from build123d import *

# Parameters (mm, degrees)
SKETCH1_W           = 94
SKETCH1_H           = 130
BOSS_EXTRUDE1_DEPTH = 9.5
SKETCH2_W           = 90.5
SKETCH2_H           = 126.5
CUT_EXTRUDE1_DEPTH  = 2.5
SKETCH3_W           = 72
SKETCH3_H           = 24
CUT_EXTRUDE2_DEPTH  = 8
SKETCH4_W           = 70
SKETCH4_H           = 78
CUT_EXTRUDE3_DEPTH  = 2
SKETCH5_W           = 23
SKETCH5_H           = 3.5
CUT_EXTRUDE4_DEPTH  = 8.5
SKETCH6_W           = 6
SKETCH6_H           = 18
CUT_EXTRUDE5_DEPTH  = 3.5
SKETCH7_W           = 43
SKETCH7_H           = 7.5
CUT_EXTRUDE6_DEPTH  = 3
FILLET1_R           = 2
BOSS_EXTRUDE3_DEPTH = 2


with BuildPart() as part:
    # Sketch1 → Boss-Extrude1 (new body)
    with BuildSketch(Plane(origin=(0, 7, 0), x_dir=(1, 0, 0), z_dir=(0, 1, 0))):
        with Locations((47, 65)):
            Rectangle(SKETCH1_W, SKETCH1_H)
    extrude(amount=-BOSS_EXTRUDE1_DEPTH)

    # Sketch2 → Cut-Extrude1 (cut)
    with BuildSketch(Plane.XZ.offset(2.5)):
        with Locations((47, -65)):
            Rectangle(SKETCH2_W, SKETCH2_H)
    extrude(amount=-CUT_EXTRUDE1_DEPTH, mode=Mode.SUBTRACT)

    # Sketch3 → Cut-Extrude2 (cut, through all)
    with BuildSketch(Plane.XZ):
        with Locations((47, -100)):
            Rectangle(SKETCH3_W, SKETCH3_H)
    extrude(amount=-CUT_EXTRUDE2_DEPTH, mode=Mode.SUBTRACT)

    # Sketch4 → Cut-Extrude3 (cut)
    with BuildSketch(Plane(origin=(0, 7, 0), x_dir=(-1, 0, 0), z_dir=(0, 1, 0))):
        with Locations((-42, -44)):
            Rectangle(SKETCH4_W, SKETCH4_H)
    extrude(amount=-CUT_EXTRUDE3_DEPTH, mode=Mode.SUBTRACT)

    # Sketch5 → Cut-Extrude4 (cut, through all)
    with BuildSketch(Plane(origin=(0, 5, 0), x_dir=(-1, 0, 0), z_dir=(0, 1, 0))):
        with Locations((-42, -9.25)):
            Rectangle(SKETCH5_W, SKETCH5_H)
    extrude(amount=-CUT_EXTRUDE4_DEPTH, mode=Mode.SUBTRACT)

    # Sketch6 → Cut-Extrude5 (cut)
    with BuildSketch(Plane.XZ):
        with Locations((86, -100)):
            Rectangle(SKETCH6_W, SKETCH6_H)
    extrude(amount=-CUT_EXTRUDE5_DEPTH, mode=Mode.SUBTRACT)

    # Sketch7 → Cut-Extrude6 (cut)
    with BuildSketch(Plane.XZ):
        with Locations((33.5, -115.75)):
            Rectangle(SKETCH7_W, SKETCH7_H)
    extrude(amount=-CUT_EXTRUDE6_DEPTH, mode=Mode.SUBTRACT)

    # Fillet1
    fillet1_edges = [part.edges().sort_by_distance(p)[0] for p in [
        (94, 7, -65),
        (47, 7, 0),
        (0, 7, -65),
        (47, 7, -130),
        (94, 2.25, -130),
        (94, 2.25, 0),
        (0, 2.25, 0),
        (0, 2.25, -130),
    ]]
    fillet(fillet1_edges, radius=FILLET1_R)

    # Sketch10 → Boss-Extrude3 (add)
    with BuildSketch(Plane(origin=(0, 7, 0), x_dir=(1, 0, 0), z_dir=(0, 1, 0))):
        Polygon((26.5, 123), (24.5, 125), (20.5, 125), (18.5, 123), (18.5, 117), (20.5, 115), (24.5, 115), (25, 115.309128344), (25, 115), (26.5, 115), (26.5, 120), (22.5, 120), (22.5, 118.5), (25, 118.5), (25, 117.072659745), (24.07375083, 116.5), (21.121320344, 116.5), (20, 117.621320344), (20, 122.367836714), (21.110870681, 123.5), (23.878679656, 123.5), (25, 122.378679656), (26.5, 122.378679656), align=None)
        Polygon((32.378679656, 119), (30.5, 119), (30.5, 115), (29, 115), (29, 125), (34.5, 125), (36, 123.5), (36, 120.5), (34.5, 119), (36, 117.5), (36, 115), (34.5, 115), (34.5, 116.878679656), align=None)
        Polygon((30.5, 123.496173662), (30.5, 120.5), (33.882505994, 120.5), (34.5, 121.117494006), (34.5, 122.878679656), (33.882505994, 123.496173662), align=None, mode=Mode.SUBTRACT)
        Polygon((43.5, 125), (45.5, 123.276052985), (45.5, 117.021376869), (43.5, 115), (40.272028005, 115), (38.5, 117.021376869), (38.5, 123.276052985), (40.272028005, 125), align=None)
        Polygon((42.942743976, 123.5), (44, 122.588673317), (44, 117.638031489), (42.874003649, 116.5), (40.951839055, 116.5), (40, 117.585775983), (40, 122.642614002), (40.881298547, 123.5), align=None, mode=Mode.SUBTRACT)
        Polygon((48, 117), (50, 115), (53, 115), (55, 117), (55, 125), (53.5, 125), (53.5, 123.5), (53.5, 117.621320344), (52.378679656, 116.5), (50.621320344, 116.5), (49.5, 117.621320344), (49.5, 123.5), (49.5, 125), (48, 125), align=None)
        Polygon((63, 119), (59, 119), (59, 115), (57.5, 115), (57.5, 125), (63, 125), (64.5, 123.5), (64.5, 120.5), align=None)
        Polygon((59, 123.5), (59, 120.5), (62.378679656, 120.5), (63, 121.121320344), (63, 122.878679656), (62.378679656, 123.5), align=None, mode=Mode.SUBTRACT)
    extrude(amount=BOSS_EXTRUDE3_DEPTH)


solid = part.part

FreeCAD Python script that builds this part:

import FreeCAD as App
import Part
import Sketcher
from FreeCAD import Vector


def edges_at(feature, points):
    """Names of the edges that pass closest to the given points."""
    edges = feature.Shape.Edges
    near = lambda p: min(range(len(edges)), key=lambda i: edges[i].distToShape(Part.Vertex(*p))[0])
    return sorted({f"Edge{near(p) + 1}" for p in points})


def add_polygon(sketch, points):
    """Adds a closed chain of lines whose ends are joined by coincident constraints."""
    first, n = sketch.GeometryCount, len(points)
    for a, b in zip(points, points[1:] + points[:1]):
        sketch.addGeometry(Part.LineSegment(App.Vector(*a, 0), App.Vector(*b, 0)), False)
    for i in range(n):
        sketch.addConstraint(Sketcher.Constraint("Coincident", first + i, 2, first + (i + 1) % n, 1))

doc = App.newDocument("Part")
body = doc.addObject("PartDesign::Body", "Body")

# Sketch on XZ plane
sketch1 = body.newObject("Sketcher::SketchObject", "Sketch")
sketch1.AttachmentSupport = (doc.getObject("XZ_Plane"), [""])
sketch1.MapMode = "FlatFace"
sketch1.AttachmentOffset = App.Placement(Vector(0, 0, -7), App.Rotation())
add_polygon(sketch1, [(0, -130), (0, 0), (94, 0), (94, -130)])  # lines 0-3
sketch1.addConstraint([
    Sketcher.Constraint("Vertical", 0),
    Sketcher.Constraint("Horizontal", 1),
    Sketcher.Constraint("Vertical", 2),
    Sketcher.Constraint("Horizontal", 3),
    Sketcher.Constraint("Coincident", 0, 2, -1, 1),
    Sketcher.Constraint("DistanceX", 1, 1, 1, 2, 94.0),
    Sketcher.Constraint("DistanceY", 0, 1, 0, 2, 130.0),
])
pad1 = body.newObject("PartDesign::Pad", "Pad")
pad1.Profile = sketch1
pad1.Length = 9.5

# Sketch on XZ plane
sketch2 = body.newObject("Sketcher::SketchObject", "Sketch001")
sketch2.AttachmentSupport = (doc.getObject("XZ_Plane"), [""])
sketch2.MapMode = "FlatFace"
sketch2.AttachmentOffset = App.Placement(Vector(0, 0, 2.5), App.Rotation())
add_polygon(sketch2, [(2, -2), (2, -128), (92, -128), (92, -2)])  # lines 0-3
sketch2.addConstraint([
    Sketcher.Constraint("Vertical", 0),
    Sketcher.Constraint("Horizontal", 1),
    Sketcher.Constraint("Vertical", 2),
    Sketcher.Constraint("Horizontal", 3),
    Sketcher.Constraint("DistanceX", 1, 1, 1, 2, 90.5),
    Sketcher.Constraint("DistanceY", 0, 2, 0, 1, 126.5),
    Sketcher.Constraint("DistanceX", -1, 1, 0, 2, 1.75),
    Sketcher.Constraint("DistanceY", 0, 2, -1, 1, 128.25),
])
pocket1 = body.newObject("PartDesign::Pocket", "Pocket")
pocket1.Profile = sketch2
pocket1.Length = 2.5

# Sketch on XZ plane
sketch3 = body.newObject("Sketcher::SketchObject", "Sketch002")
sketch3.AttachmentSupport = (doc.getObject("XZ_Plane"), [""])
sketch3.MapMode = "FlatFace"
add_polygon(sketch3, [(11, -88), (11, -112), (83, -112), (83, -88)])  # lines 0-3
sketch3.addConstraint([
    Sketcher.Constraint("Vertical", 0),
    Sketcher.Constraint("Horizontal", 1),
    Sketcher.Constraint("Vertical", 2),
    Sketcher.Constraint("Horizontal", 3),
    Sketcher.Constraint("DistanceX", 1, 1, 1, 2, 72.0),
    Sketcher.Constraint("DistanceY", 0, 2, 0, 1, 24.0),
    Sketcher.Constraint("DistanceX", -1, 1, 0, 2, 11.0),
    Sketcher.Constraint("DistanceY", 0, 2, -1, 1, 112.0),
])
pocket2 = body.newObject("PartDesign::Pocket", "Pocket001")
pocket2.Profile = sketch3
pocket2.Type = "ThroughAll"

# Sketch on XZ plane
sketch4 = body.newObject("Sketcher::SketchObject", "Sketch003")
sketch4.AttachmentSupport = (doc.getObject("XZ_Plane"), [""])
sketch4.MapMode = "FlatFace"
sketch4.AttachmentOffset = App.Placement(Vector(0, 0, -7), App.Rotation())
add_polygon(sketch4, [(77, -5), (77, -83), (7, -83), (7, -5)])  # lines 0-3
sketch4.addConstraint([
    Sketcher.Constraint("Vertical", 0),
    Sketcher.Constraint("Horizontal", 1),
    Sketcher.Constraint("Vertical", 2),
    Sketcher.Constraint("Horizontal", 3),
    Sketcher.Constraint("DistanceX", 1, 2, 1, 1, 70.0),
    Sketcher.Constraint("DistanceY", 0, 2, 0, 1, 78.0),
    Sketcher.Constraint("DistanceX", -1, 1, 0, 2, 77.0),
    Sketcher.Constraint("DistanceY", 0, 2, -1, 1, 83.0),
])
pocket3 = body.newObject("PartDesign::Pocket", "Pocket002")
pocket3.Profile = sketch4
pocket3.Length = 2
pocket3.Reversed = True

# Sketch on XZ plane
sketch5 = body.newObject("Sketcher::SketchObject", "Sketch004")
sketch5.AttachmentSupport = (doc.getObject("XZ_Plane"), [""])
sketch5.MapMode = "FlatFace"
sketch5.AttachmentOffset = App.Placement(Vector(0, 0, -5), App.Rotation())
add_polygon(sketch5, [(53.5, -7.5), (53.5, -11), (30.5, -11), (30.5, -7.5)])  # lines 0-3
sketch5.addConstraint([
    Sketcher.Constraint("Vertical", 0),
    Sketcher.Constraint("Horizontal", 1),
    Sketcher.Constraint("Vertical", 2),
    Sketcher.Constraint("Horizontal", 3),
    Sketcher.Constraint("DistanceX", 1, 2, 1, 1, 23.0),
    Sketcher.Constraint("DistanceY", 0, 2, 0, 1, 3.5),
    Sketcher.Constraint("DistanceY", 0, 2, -1, 1, 11.0),
    Sketcher.Constraint("DistanceX", -1, 1, 0, 2, 53.5),
])
pocket4 = body.newObject("PartDesign::Pocket", "Pocket003")
pocket4.Profile = sketch5
pocket4.Type = "ThroughAll"
pocket4.Reversed = True

# Sketch on XZ plane
sketch6 = body.newObject("Sketcher::SketchObject", "Sketch005")
sketch6.AttachmentSupport = (doc.getObject("XZ_Plane"), [""])
sketch6.MapMode = "FlatFace"
add_polygon(sketch6, [(83, -91), (83, -109), (89, -109), (89, -91)])  # lines 0-3
sketch6.addConstraint([
    Sketcher.Constraint("Vertical", 0),
    Sketcher.Constraint("Horizontal", 1),
    Sketcher.Constraint("Vertical", 2),
    Sketcher.Constraint("Horizontal", 3),
    Sketcher.Constraint("DistanceX", 1, 1, 1, 2, 6.0),
    Sketcher.Constraint("DistanceY", 0, 2, 0, 1, 18.0),
    Sketcher.Constraint("DistanceX", -1, 1, 0, 2, 83.0),
    Sketcher.Constraint("DistanceY", 0, 2, -1, 1, 109.0),
])
pocket5 = body.newObject("PartDesign::Pocket", "Pocket004")
pocket5.Profile = sketch6
pocket5.Length = 3.5

# Sketch on XZ plane
sketch7 = body.newObject("Sketcher::SketchObject", "Sketch006")
sketch7.AttachmentSupport = (doc.getObject("XZ_Plane"), [""])
sketch7.MapMode = "FlatFace"
add_polygon(sketch7, [(12, -112), (12, -120), (55, -120), (55, -112)])  # lines 0-3
sketch7.addConstraint([
    Sketcher.Constraint("Vertical", 0),
    Sketcher.Constraint("Horizontal", 1),
    Sketcher.Constraint("Vertical", 2),
    Sketcher.Constraint("Horizontal", 3),
    Sketcher.Constraint("DistanceX", 1, 1, 1, 2, 43.0),
    Sketcher.Constraint("DistanceY", 0, 2, 0, 1, 7.5),
    Sketcher.Constraint("DistanceX", -1, 1, 0, 2, 12.0),
    Sketcher.Constraint("DistanceY", 2, 2, -1, 1, 112.0),
])
pocket6 = body.newObject("PartDesign::Pocket", "Pocket005")
pocket6.Profile = sketch7
pocket6.Length = 3
doc.recompute()

fillet = body.newObject("PartDesign::Fillet", "Fillet")
fillet.Base = (pocket6, edges_at(pocket6, [
    (94, 7, -65),
    (47, 7, 0),
    (0, 7, -65),
    (47, 7, -130),
    (94, 2.25, -130),
    (94, 2.25, 0),
    (0, 2.25, 0),
    (0, 2.25, -130),
]))
fillet.Radius = 2

# Sketch on XZ plane
sketch8 = body.newObject("Sketcher::SketchObject", "Sketch007")
sketch8.AttachmentSupport = (doc.getObject("XZ_Plane"), [""])
sketch8.MapMode = "FlatFace"
sketch8.AttachmentOffset = App.Placement(Vector(0, 0, -7), App.Rotation())
add_polygon(sketch8, [(26.5, -123), (24.5, -125), (20.5, -125), (18.5, -123), (18.5, -117), (20.5, -115), (24.5, -115), (25, -115.31), (25, -115), (26.5, -115), (26.5, -120), (22.5, -120), (22.5, -118.5), (25, -118.5), (25, -117.07), (24.07, -116.5), (21.12, -116.5), (20, -117.62), (20, -122.37), (21.11, -123.5), (23.88, -123.5), (25, -122.38), (26.5, -122.38)])  # lines 0-22
add_polygon(sketch8, [(30.5, -119), (32.38, -119), (34.5, -116.88), (34.5, -115), (36, -115), (36, -117.5), (34.5, -119), (36, -120.5), (36, -123.5), (34.5, -125), (29, -125), (29, -115), (30.5, -115)])  # lines 23-35
add_polygon(sketch8, [(30.5, -123.5), (33.88, -123.5), (34.5, -122.88), (34.5, -121.12), (33.88, -120.5), (30.5, -120.5)])  # lines 36-41
add_polygon(sketch8, [(45.5, -123.28), (43.5, -125), (40.27, -125), (38.5, -123.28), (38.5, -117.02), (40.27, -115), (43.5, -115), (45.5, -117.02)])  # lines 42-49
add_polygon(sketch8, [(42.94, -123.5), (44, -122.59), (44, -117.64), (42.87, -116.5), (40.95, -116.5), (40, -117.59), (40, -122.64), (40.88, -123.5)])  # lines 50-57
add_polygon(sketch8, [(48, -117), (50, -115), (53, -115), (55, -117), (55, -125), (53.5, -125), (53.5, -117.62), (52.38, -116.5), (50.62, -116.5), (49.5, -117.62), (49.5, -125), (48, -125)])  # lines 58-69
add_polygon(sketch8, [(59, -119), (63, -119), (64.5, -120.5), (64.5, -123.5), (63, -125), (57.5, -125), (57.5, -115), (59, -115)])  # lines 70-77
add_polygon(sketch8, [(59, -123.5), (62.38, -123.5), (63, -122.88), (63, -121.12), (62.38, -120.5), (59, -120.5)])  # lines 78-83
sketch8.addConstraint([
    Sketcher.Constraint("Horizontal", 1),
    Sketcher.Constraint("Vertical", 3),
    Sketcher.Constraint("Horizontal", 5),
    Sketcher.Constraint("Vertical", 7),
    Sketcher.Constraint("Horizontal", 8),
    Sketcher.Constraint("Vertical", 9),
    Sketcher.Constraint("Horizontal", 10),
    Sketcher.Constraint("Vertical", 11),
    Sketcher.Constraint("Horizontal", 12),
    Sketcher.Constraint("Vertical", 13),
    Sketcher.Constraint("Horizontal", 15),
    Sketcher.Constraint("Vertical", 17),
    Sketcher.Constraint("Horizontal", 19),
    Sketcher.Constraint("Horizontal", 21),
    Sketcher.Constraint("Vertical", 22),
    Sketcher.Constraint("Horizontal", 23),
    Sketcher.Constraint("Vertical", 25),
    Sketcher.Constraint("Horizontal", 26),
    Sketcher.Constraint("Vertical", 27),
    Sketcher.Constraint("Vertical", 30),
    Sketcher.Constraint("Horizontal", 32),
    Sketcher.Constraint("Vertical", 33),
    Sketcher.Constraint("Horizontal", 34),
    Sketcher.Constraint("Vertical", 35),
    Sketcher.Constraint("Horizontal", 36),
    Sketcher.Constraint("Vertical", 38),
    Sketcher.Constraint("Horizontal", 40),
    Sketcher.Constraint("Vertical", 41),
    Sketcher.Constraint("Horizontal", 43),
    Sketcher.Constraint("Vertical", 45),
    Sketcher.Constraint("Horizontal", 47),
    Sketcher.Constraint("Vertical", 49),
    Sketcher.Constraint("Vertical", 51),
    Sketcher.Constraint("Horizontal", 53),
    Sketcher.Constraint("Vertical", 55),
    Sketcher.Constraint("Horizontal", 57),
    Sketcher.Constraint("Horizontal", 59),
    Sketcher.Constraint("Vertical", 61),
    Sketcher.Constraint("Horizontal", 62),
    Sketcher.Constraint("Vertical", 63),
    Sketcher.Constraint("Horizontal", 65),
    Sketcher.Constraint("Vertical", 67),
    Sketcher.Constraint("Horizontal", 68),
    Sketcher.Constraint("Vertical", 69),
    Sketcher.Constraint("Horizontal", 70),
    Sketcher.Constraint("Vertical", 72),
    Sketcher.Constraint("Horizontal", 74),
    Sketcher.Constraint("Vertical", 75),
    Sketcher.Constraint("Horizontal", 76),
    Sketcher.Constraint("Vertical", 77),
    Sketcher.Constraint("Horizontal", 78),
    Sketcher.Constraint("Vertical", 80),
    Sketcher.Constraint("Horizontal", 82),
    Sketcher.Constraint("Vertical", 83),
    Sketcher.Constraint("Perpendicular", 0, 2),
    Sketcher.Constraint("Perpendicular", 2, 4),
    Sketcher.Constraint("Parallel", 6, 14),
    Sketcher.Constraint("Parallel", 4, 16),
    Sketcher.Constraint("Parallel", 16, 20),
    Sketcher.Constraint("Parallel", 20, 24),
    Sketcher.Constraint("Parallel", 24, 28),
    Sketcher.Constraint("Perpendicular", 28, 29),
    Sketcher.Constraint("Perpendicular", 29, 31),
    Sketcher.Constraint("Parallel", 31, 37),
    Sketcher.Constraint("Perpendicular", 37, 39),
    Sketcher.Constraint("Parallel", 42, 50),
    Sketcher.Constraint("Parallel", 48, 52),
    Sketcher.Constraint("Parallel", 46, 54),
    Sketcher.Constraint("Parallel", 44, 56),
    Sketcher.Constraint("Perpendicular", 39, 58),
    Sketcher.Constraint("Perpendicular", 58, 60),
    Sketcher.Constraint("Parallel", 60, 64),
    Sketcher.Constraint("Perpendicular", 64, 66),
    Sketcher.Constraint("Perpendicular", 66, 71),
    Sketcher.Constraint("Perpendicular", 71, 73),
    Sketcher.Constraint("Parallel", 73, 79),
    Sketcher.Constraint("Perpendicular", 79, 81),
    Sketcher.Constraint("Horizontal", 5, 2, 7, 2),
    Sketcher.Constraint("Horizontal", 2, 2, 22, 2),
    Sketcher.Constraint("Horizontal", 8, 2, 25, 2),
    Sketcher.Constraint("Horizontal", 23, 2, 28, 2),
    Sketcher.Constraint("Horizontal", 19, 2, 30, 2),
    Sketcher.Constraint("Horizontal", 1, 2, 31, 2),
    Sketcher.Constraint("Horizontal", 26, 2, 33, 2),
    Sketcher.Constraint("Horizontal", 29, 2, 39, 2),
    Sketcher.Constraint("Horizontal", 32, 2, 42, 2),
    Sketcher.Constraint("Horizontal", 34, 2, 46, 2),
    Sketcher.Constraint("Horizontal", 45, 2, 48, 2),
    Sketcher.Constraint("Horizontal", 44, 2, 49, 2),
    Sketcher.Constraint("Horizontal", 15, 2, 52, 2),
    Sketcher.Constraint("Horizontal", 30, 2, 56, 2),
    Sketcher.Constraint("Horizontal", 47, 2, 58, 2),
    Sketcher.Constraint("Horizontal", 3, 2, 60, 2),
    Sketcher.Constraint("Horizontal", 43, 2, 61, 2),
    Sketcher.Constraint("Horizontal", 16, 2, 63, 2),
    Sketcher.Constraint("Horizontal", 53, 2, 64, 2),
    Sketcher.Constraint("Horizontal", 63, 2, 66, 2),
    Sketcher.Constraint("Horizontal", 62, 2, 67, 2),
    Sketcher.Constraint("Horizontal", 60, 2, 69, 2),
    Sketcher.Constraint("Horizontal", 35, 2, 70, 2),
    Sketcher.Constraint("Horizontal", 40, 2, 71, 2),
    Sketcher.Constraint("Horizontal", 57, 2, 72, 2),
    Sketcher.Constraint("Horizontal", 68, 2, 73, 2),
    Sketcher.Constraint("Horizontal", 59, 2, 75, 2),
    Sketcher.Constraint("Horizontal", 72, 2, 78, 2),
    Sketcher.Constraint("Horizontal", 37, 2, 79, 2),
    Sketcher.Constraint("Horizontal", 71, 2, 81, 2),
    Sketcher.Constraint("Vertical", 1, 2, 4, 2),
    Sketcher.Constraint("Vertical", 0, 2, 5, 2),
    Sketcher.Constraint("Vertical", 7, 2, 12, 2),
    Sketcher.Constraint("Vertical", 13, 2, 20, 2),
    Sketcher.Constraint("Vertical", 9, 2, 21, 2),
    Sketcher.Constraint("Vertical", 25, 2, 28, 2),
    Sketcher.Constraint("Vertical", 27, 2, 29, 2),
    Sketcher.Constraint("Vertical", 28, 2, 31, 2),
    Sketcher.Constraint("Vertical", 31, 2, 37, 2),
    Sketcher.Constraint("Vertical", 36, 2, 39, 2),
    Sketcher.Constraint("Vertical", 35, 2, 40, 2),
    Sketcher.Constraint("Vertical", 43, 2, 46, 2),
    Sketcher.Constraint("Vertical", 42, 2, 47, 2),
    Sketcher.Constraint("Vertical", 73, 2, 79, 2),
    Sketcher.Constraint("Vertical", 78, 2, 81, 2),
    Sketcher.Constraint("Vertical", 77, 2, 82, 2),
    Sketcher.Constraint("Equal", 5, 10),
    Sketcher.Constraint("Equal", 21, 26),
    Sketcher.Constraint("Equal", 26, 34),
    Sketcher.Constraint("Equal", 34, 62),
    Sketcher.Constraint("Equal", 62, 68),
    Sketcher.Constraint("Equal", 10, 70),
    Sketcher.Constraint("Equal", 32, 74),
    Sketcher.Constraint("Equal", 68, 76),
    Sketcher.Constraint("Equal", 76, 11),
    Sketcher.Constraint("Equal", 23, 25),
    Sketcher.Constraint("Equal", 12, 27),
    Sketcher.Constraint("Equal", 59, 30),
    Sketcher.Constraint("Equal", 65, 80),
    Sketcher.Constraint("Equal", 16, 20),
    Sketcher.Constraint("DistanceX", 1, 2, 1, 1, 4.0),
    Sketcher.Constraint("DistanceX", 59, 1, 59, 2, 3.0),
    Sketcher.Constraint("DistanceY", 3, 1, 3, 2, 6.0),
    Sketcher.Constraint("DistanceY", 9, 2, 9, 1, 5.0),
    Sketcher.Constraint("DistanceY", 33, 1, 33, 2, 10.0),
    Sketcher.Constraint("Distance", 24, 3.0),
    Sketcher.Constraint("DistanceY", 0, 2, -1, 1, 125.0),
    Sketcher.Constraint("DistanceX", -1, 1, 6, 2, 25.0),
    Sketcher.Constraint("DistanceX", -1, 1, 16, 2, 20.0),
    Sketcher.Constraint("DistanceX", -1, 1, 26, 2, 36.0),
    Sketcher.Constraint("DistanceX", -1, 1, 50, 2, 44.0),
    Sketcher.Constraint("DistanceX", -1, 1, 54, 2, 40.0),
    Sketcher.Constraint("DistanceX", -1, 1, 58, 2, 50.0),
    Sketcher.Constraint("DistanceX", -1, 1, 70, 2, 63.0),
    Sketcher.Constraint("DistanceY", 14, 2, -1, 1, 116.5),
    Sketcher.Constraint("DistanceX", -1, 1, 42, 2, 43.5),
    Sketcher.Constraint("DistanceX", -1, 1, 44, 2, 38.5),
    Sketcher.Constraint("DistanceX", -1, 1, 48, 2, 45.5),
    Sketcher.Constraint("DistanceX", 15, 2, 15, 1, 2.95243),
    Sketcher.Constraint("DistanceX", 19, 1, 19, 2, 2.767809),
    Sketcher.Constraint("DistanceX", 43, 2, 43, 1, 3.227972),
    Sketcher.Constraint("DistanceX", 65, 2, 65, 1, 1.757359),
    Sketcher.Constraint("DistanceY", 7, 1, 7, 2, 0.309128),
    Sketcher.Constraint("DistanceY", 51, 1, 51, 2, 4.950642),
    Sketcher.Constraint("DistanceY", 55, 2, 55, 1, 5.056838),
    Sketcher.Constraint("DistanceX", -1, 1, 56, 2, 40.881299),
    Sketcher.Constraint("Distance", 37, 0.873268),
    Sketcher.Constraint("Distance", 44, 2.472261),
    Sketcher.Constraint("Distance", 46, 2.688131),
    Sketcher.Constraint("DistanceX", 53, 2, 53, 1, 1.922165),
    Sketcher.Constraint("DistanceY", 17, 2, 17, 1, 4.746516),
])
pad2 = body.newObject("PartDesign::Pad", "Pad001")
pad2.Profile = sketch8
pad2.Length = 2
pad2.Reversed = True

doc.recompute()
